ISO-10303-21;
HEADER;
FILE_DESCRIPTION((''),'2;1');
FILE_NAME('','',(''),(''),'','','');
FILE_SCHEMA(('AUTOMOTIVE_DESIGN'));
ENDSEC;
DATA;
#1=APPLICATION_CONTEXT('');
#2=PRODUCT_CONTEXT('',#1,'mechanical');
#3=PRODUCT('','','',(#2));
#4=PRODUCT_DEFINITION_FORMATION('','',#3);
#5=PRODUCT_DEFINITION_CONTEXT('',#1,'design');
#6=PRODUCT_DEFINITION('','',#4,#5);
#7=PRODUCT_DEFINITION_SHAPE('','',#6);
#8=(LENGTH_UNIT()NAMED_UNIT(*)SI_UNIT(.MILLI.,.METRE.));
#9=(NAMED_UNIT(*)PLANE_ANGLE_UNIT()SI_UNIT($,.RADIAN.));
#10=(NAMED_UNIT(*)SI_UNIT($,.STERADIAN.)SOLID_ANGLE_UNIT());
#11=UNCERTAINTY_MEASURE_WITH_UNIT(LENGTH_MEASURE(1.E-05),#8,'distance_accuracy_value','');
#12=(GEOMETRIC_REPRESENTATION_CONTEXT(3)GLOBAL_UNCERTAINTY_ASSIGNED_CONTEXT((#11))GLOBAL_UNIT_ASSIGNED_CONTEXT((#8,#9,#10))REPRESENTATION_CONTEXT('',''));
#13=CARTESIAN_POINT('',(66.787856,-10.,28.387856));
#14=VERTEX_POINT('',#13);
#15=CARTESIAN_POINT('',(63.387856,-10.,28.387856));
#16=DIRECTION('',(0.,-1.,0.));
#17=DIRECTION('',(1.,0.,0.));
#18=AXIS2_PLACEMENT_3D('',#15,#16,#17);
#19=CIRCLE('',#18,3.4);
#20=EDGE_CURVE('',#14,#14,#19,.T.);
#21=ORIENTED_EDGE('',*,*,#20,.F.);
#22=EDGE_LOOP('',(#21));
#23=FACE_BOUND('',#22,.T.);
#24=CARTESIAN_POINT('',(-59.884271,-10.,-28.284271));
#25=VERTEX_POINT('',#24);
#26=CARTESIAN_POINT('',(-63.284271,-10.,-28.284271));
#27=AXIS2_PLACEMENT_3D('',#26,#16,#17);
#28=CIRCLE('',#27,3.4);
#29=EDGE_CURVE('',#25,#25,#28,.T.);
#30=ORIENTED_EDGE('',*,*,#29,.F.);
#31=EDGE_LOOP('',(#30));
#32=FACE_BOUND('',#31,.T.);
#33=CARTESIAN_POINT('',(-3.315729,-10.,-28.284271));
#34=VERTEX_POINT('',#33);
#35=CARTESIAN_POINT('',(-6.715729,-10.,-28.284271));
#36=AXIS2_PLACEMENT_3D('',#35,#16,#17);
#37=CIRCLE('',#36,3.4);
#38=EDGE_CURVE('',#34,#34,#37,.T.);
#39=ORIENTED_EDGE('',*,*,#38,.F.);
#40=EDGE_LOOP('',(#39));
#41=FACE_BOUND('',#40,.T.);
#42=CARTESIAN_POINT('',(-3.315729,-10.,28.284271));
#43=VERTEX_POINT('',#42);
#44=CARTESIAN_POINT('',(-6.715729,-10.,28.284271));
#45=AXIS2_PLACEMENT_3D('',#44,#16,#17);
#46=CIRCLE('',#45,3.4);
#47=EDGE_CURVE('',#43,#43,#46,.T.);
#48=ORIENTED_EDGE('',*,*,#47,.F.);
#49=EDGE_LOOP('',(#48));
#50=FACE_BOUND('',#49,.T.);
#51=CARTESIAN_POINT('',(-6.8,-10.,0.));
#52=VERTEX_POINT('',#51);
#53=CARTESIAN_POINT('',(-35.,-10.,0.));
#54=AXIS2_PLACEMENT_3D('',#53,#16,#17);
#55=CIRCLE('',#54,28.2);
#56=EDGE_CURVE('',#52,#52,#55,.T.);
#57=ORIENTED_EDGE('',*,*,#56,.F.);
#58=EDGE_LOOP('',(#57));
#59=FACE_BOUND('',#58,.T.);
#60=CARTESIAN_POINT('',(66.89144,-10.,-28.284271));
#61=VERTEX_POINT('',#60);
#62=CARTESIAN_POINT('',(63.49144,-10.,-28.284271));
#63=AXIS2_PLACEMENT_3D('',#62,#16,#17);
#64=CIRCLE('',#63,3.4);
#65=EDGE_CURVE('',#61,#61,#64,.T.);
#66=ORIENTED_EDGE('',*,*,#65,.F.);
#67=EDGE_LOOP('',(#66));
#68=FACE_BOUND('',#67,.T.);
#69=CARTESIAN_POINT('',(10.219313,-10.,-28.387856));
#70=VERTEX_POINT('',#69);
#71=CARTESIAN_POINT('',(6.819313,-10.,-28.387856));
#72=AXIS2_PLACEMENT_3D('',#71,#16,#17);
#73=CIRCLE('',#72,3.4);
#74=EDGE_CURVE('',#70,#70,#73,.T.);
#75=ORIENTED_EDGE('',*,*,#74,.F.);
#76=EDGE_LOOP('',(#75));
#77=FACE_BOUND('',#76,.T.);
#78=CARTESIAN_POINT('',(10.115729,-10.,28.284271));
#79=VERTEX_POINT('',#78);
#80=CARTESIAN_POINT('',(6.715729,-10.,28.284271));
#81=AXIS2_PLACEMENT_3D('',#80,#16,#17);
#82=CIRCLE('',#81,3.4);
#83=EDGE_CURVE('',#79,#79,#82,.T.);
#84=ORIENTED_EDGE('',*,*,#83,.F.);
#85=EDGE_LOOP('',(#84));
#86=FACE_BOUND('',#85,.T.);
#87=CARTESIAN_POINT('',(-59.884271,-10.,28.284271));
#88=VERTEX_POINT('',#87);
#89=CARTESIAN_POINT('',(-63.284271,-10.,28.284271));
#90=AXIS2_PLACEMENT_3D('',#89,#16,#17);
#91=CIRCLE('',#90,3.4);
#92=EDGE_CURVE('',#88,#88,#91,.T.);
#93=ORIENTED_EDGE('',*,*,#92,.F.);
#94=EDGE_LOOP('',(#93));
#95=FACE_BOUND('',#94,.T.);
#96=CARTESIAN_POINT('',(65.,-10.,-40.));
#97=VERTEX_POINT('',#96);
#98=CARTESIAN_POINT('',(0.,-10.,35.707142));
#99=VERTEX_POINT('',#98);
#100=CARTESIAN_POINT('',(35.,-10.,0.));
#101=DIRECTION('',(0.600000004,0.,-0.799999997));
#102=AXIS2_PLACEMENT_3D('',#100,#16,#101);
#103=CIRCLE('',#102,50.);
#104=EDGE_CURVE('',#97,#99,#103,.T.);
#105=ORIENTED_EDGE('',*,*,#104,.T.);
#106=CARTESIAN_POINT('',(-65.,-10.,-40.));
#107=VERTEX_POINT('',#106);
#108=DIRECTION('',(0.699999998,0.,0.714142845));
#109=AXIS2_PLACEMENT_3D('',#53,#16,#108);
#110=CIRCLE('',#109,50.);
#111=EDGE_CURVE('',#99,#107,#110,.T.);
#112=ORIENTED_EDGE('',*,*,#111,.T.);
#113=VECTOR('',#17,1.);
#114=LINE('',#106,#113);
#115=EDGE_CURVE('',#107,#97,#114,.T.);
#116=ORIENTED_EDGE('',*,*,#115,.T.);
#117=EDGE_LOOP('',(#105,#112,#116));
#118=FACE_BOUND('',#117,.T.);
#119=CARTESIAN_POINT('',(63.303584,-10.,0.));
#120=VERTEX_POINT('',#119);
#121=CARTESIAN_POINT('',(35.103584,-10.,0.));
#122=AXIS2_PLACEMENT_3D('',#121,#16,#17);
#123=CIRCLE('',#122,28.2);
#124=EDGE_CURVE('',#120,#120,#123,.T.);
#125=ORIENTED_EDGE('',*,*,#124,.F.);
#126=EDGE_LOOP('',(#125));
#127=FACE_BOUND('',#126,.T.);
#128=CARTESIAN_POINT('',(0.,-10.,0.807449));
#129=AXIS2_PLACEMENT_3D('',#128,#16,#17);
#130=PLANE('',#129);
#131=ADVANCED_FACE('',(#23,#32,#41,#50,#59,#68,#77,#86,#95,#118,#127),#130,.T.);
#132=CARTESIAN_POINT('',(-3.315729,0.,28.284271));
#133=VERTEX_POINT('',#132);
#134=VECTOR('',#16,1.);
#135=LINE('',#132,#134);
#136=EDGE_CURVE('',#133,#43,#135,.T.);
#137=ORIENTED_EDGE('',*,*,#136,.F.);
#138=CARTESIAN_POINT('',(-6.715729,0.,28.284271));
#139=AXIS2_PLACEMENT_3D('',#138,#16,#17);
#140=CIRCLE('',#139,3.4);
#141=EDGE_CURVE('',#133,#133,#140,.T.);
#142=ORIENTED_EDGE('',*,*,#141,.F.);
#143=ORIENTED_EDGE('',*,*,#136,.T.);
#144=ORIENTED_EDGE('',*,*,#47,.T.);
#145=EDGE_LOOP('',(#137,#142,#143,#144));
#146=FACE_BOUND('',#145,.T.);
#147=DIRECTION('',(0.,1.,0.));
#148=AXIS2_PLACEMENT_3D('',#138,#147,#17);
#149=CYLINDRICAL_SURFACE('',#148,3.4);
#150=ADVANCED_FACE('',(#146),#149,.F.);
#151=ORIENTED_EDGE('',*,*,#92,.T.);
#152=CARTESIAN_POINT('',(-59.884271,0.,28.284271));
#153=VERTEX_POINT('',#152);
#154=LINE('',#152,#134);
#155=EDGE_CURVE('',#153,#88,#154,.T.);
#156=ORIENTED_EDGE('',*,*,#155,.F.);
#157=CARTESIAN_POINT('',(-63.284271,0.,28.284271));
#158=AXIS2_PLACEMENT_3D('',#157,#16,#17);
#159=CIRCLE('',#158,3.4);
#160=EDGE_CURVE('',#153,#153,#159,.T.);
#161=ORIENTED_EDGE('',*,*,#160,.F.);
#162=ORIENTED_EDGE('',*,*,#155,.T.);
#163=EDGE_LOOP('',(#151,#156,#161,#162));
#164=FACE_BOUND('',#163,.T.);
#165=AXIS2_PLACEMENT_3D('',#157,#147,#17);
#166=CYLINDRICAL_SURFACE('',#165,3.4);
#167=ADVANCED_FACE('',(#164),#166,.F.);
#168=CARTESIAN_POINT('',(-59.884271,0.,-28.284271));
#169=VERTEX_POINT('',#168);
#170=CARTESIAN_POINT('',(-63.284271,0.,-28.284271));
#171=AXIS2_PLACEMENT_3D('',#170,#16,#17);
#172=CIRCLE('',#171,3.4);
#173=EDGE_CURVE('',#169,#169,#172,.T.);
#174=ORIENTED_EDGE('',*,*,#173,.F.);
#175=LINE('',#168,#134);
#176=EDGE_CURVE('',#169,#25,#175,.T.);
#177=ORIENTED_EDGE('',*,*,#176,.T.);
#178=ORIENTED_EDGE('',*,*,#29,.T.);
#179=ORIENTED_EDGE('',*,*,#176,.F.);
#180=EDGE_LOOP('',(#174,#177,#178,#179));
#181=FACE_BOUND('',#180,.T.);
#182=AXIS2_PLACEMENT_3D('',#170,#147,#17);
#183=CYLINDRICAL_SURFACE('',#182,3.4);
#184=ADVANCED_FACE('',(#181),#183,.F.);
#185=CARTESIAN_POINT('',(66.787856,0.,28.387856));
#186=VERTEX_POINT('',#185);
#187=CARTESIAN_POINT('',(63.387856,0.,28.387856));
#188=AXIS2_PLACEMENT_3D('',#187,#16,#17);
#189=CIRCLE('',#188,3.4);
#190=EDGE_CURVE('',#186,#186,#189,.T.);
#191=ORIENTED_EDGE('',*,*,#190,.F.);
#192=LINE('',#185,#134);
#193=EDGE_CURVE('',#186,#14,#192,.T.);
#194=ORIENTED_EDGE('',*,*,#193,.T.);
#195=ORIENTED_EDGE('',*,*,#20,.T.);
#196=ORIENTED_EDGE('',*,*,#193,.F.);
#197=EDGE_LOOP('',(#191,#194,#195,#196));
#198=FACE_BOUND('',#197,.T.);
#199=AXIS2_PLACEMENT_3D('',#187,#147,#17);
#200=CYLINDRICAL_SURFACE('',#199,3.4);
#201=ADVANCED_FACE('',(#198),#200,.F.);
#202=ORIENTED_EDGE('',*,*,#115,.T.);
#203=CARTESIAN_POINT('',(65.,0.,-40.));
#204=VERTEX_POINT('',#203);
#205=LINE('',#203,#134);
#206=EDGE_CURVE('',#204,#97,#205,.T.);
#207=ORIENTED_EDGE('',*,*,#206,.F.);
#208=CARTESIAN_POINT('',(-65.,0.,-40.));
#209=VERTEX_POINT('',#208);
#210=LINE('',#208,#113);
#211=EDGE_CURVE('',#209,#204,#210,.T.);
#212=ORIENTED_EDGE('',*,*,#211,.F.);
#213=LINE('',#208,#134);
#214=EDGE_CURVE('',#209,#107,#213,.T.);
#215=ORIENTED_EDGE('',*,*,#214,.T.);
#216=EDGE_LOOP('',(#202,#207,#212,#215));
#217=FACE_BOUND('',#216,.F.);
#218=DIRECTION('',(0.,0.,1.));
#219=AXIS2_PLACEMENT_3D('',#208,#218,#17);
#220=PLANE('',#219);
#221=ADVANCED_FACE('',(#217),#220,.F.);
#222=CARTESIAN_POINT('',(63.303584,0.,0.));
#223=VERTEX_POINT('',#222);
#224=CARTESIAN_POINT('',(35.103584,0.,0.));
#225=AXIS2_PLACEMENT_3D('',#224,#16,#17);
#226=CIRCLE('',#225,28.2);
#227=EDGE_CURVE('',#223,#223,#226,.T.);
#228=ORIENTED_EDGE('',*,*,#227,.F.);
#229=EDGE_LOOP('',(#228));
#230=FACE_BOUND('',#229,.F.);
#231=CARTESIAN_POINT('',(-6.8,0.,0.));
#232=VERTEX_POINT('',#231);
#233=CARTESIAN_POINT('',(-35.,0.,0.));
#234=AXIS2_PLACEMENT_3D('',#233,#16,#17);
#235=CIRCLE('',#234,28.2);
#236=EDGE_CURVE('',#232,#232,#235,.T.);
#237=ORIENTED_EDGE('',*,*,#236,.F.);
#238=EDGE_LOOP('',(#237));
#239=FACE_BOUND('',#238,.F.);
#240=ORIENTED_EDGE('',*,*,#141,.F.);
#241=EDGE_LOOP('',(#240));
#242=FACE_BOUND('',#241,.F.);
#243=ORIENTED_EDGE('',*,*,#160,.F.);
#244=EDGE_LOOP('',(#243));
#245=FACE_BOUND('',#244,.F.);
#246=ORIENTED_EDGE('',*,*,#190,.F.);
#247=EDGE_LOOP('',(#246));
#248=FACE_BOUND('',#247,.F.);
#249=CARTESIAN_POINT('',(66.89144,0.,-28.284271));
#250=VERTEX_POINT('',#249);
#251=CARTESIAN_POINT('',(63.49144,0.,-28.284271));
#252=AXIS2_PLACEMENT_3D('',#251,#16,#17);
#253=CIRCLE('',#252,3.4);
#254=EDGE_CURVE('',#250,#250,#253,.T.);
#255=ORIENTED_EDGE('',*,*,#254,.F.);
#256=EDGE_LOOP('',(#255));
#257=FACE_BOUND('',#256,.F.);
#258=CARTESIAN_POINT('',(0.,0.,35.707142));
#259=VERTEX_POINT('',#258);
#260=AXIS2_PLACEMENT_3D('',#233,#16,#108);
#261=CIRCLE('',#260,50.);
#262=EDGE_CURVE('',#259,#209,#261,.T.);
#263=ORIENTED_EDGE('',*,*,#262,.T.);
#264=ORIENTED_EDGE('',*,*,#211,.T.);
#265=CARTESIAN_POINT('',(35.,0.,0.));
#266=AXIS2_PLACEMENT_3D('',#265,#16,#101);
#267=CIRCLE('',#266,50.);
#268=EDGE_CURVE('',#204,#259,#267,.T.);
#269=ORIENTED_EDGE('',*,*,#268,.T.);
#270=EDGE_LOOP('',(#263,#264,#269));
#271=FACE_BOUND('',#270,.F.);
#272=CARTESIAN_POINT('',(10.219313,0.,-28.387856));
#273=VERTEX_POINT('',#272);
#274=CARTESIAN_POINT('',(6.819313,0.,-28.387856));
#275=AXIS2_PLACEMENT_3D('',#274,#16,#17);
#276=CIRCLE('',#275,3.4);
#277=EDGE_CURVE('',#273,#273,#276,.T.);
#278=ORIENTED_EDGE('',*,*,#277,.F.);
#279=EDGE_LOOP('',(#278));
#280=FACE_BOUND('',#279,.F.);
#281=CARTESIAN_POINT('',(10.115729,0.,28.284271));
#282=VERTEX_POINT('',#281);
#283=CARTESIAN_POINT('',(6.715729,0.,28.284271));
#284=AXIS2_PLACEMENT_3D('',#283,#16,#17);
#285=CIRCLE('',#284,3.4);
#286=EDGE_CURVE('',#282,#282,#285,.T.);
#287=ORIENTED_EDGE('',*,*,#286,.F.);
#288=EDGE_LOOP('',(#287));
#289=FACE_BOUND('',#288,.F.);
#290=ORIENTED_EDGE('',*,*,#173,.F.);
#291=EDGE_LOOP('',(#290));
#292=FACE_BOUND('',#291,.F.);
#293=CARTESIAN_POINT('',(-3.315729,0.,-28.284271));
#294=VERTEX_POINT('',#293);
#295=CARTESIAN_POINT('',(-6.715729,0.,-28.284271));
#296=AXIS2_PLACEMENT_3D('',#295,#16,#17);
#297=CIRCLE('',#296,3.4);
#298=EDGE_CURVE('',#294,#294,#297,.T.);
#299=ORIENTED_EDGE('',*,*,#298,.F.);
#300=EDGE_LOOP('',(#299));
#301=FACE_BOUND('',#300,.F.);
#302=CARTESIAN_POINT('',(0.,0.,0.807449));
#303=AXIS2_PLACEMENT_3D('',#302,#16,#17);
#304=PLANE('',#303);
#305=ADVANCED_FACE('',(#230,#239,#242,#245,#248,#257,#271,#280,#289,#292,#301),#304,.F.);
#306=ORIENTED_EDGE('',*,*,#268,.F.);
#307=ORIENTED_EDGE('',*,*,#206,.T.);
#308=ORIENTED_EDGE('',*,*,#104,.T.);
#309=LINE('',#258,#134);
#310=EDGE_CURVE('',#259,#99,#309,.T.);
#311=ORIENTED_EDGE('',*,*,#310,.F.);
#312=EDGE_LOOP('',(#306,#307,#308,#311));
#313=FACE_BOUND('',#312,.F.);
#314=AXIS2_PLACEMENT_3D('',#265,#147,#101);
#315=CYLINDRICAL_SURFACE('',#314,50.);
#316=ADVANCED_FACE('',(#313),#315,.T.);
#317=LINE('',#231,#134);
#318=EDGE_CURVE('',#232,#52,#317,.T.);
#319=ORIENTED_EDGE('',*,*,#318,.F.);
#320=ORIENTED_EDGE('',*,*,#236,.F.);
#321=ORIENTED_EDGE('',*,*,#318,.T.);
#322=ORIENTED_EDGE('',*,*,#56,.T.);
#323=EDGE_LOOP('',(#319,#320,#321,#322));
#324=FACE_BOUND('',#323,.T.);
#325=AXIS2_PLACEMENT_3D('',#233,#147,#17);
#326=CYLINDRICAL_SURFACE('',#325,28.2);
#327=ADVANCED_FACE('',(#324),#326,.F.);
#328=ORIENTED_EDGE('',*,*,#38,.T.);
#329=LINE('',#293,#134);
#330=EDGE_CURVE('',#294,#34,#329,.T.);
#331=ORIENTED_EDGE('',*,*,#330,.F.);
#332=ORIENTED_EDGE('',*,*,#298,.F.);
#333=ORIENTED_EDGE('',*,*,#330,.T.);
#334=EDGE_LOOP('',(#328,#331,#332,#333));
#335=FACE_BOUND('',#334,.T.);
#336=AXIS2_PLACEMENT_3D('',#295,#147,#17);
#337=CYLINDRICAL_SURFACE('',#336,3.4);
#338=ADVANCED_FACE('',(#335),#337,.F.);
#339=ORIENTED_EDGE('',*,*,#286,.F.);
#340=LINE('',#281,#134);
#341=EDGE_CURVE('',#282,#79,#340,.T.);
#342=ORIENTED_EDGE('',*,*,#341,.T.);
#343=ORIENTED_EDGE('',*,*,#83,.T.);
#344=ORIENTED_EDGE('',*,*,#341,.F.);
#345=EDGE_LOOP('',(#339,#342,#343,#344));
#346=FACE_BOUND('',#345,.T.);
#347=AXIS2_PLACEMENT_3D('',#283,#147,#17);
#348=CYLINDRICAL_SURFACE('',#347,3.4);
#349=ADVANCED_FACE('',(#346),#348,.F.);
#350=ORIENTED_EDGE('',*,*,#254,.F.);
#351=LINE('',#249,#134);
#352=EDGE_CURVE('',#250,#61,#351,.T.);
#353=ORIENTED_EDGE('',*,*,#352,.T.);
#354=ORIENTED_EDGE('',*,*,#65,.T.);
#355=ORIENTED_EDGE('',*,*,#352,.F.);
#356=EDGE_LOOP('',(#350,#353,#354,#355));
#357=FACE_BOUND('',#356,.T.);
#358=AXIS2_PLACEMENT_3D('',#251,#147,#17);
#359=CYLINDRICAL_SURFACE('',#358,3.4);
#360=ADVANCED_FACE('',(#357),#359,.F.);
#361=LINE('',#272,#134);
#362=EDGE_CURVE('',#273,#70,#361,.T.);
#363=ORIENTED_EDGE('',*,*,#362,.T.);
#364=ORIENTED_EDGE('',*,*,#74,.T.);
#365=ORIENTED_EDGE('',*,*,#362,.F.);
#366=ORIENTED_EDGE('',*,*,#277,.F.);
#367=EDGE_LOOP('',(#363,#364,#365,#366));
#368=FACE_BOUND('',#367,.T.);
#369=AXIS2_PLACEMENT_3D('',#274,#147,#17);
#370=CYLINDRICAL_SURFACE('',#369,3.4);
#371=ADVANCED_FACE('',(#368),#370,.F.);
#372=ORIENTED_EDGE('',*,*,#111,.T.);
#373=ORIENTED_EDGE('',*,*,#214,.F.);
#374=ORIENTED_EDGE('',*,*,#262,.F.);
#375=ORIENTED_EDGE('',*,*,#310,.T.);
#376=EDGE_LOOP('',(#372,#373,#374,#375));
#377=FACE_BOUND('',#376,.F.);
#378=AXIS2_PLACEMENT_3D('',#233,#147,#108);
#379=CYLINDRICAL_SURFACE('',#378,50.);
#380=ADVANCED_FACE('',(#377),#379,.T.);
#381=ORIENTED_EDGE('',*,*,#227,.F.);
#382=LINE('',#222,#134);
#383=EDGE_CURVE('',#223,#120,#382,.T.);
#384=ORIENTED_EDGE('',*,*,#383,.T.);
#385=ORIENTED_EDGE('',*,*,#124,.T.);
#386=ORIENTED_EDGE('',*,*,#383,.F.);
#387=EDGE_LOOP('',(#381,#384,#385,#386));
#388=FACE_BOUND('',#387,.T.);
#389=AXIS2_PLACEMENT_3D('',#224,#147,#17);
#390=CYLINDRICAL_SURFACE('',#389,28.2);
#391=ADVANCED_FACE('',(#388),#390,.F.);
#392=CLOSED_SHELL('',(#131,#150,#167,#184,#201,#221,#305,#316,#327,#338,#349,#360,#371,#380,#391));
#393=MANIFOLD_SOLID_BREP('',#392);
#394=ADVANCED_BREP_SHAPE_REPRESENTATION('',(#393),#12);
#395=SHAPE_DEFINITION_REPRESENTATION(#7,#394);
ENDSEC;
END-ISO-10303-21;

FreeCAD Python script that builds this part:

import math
import FreeCAD as App
import Part
import Sketcher

V = App.Vector
Q = App.Units.Quantity

doc = App.newDocument("Part")
params = doc.addObject("Spreadsheet::Sheet", "Params")
for row, (alias, value) in enumerate([
    ("sketch1_radius", "50 mm"),
    ("sketch1_diameter", "6.8 mm"),
    ("sketch1_diameter2", "56.4 mm"),
    ("sketch1_width", "130 mm"),
    ("pad1_length", "10 mm"),
], start=1):
    params.set(f"A{row}", alias)
    params.set(f"B{row}", "=" + value)
    params.setAlias(f"B{row}", alias)

body = doc.addObject("PartDesign::Body", "Body")

# Sketch on XZ plane
sketch1 = body.newObject("Sketcher::SketchObject", "Sketch")
sketch1.AttachmentSupport = (doc.getObject("XZ_Plane"), [""])
sketch1.MapMode = "FlatFace"
sketch1.addGeometry(Part.ArcOfCircle(Part.Circle(V(35, 0, 0), V(0, 0, 1), 50), math.radians(-53), math.radians(134)), False)
sketch1.addGeometry(Part.ArcOfCircle(Part.Circle(V(-35, 0, 0), V(0, 0, 1), 50), math.radians(46), math.radians(233)), False)
sketch1.addGeometry(Part.LineSegment(V(-65, -40, 0), V(65, -40, 0)), False)
sketch1.addGeometry(Part.Circle(V(-63.3, -28.3, 0), V(0, 0, 1), 3.4), False)
sketch1.addGeometry(Part.Circle(V(-6.7, -28.3, 0), V(0, 0, 1), 3.4), False)
sketch1.addGeometry(Part.Circle(V(-35, 0, 0), V(0, 0, 1), 28.2), False)
sketch1.addGeometry(Part.Circle(V(6.8, -28.4, 0), V(0, 0, 1), 3.4), False)
sketch1.addGeometry(Part.Circle(V(63.5, -28.3, 0), V(0, 0, 1), 3.4), False)
sketch1.addGeometry(Part.Circle(V(35.1, 0, 0), V(0, 0, 1), 28.2), False)
sketch1.addGeometry(Part.Circle(V(-63.3, 28.3, 0), V(0, 0, 1), 3.4), False)
sketch1.addGeometry(Part.Circle(V(-6.7, 28.3, 0), V(0, 0, 1), 3.4), False)
sketch1.addGeometry(Part.Circle(V(6.7, 28.3, 0), V(0, 0, 1), 3.4), False)
sketch1.addGeometry(Part.Circle(V(63.4, 28.4, 0), V(0, 0, 1), 3.4), False)
sketch1.addConstraint(Sketcher.Constraint("Coincident", 0, 2, 1, 1))
sketch1.addConstraint(Sketcher.Constraint("Coincident", 1, 2, 2, 1))
sketch1.addConstraint(Sketcher.Constraint("Coincident", 2, 2, 0, 1))
sketch1.addConstraint(Sketcher.Constraint("Horizontal", 2))
sketch1.addConstraint(Sketcher.Constraint("Coincident", 5, 3, 1, 3))
sketch1.addConstraint(Sketcher.Constraint("Equal", 0, 1))
sketch1.addConstraint(Sketcher.Constraint("Equal", 3, 4))
sketch1.addConstraint(Sketcher.Constraint("Equal", 4, 6))
sketch1.addConstraint(Sketcher.Constraint("Equal", 6, 7))
sketch1.addConstraint(Sketcher.Constraint("Equal", 5, 8))
sketch1.addConstraint(Sketcher.Constraint("Equal", 7, 9))
sketch1.addConstraint(Sketcher.Constraint("Equal", 9, 10))
sketch1.addConstraint(Sketcher.Constraint("Equal", 10, 11))
sketch1.addConstraint(Sketcher.Constraint("Equal", 11, 12))
sketch1.addConstraint(Sketcher.Constraint("Symmetric", 0, 3, 1, 3, -1, 1))
sketch1.addConstraint(Sketcher.Constraint("Symmetric", 4, 3, 11, 3, -1, 1))
sketch1.addConstraint(Sketcher.Constraint("Symmetric", 10, 3, 11, 3, -2))
sketch1.addConstraint(Sketcher.Constraint("Symmetric", 3, 3, 9, 3, -1))
sketch1.addConstraint(Sketcher.Constraint("PointOnObject", 0, 3, -1))
sketch1.addConstraint(Sketcher.Constraint("PointOnObject", 8, 3, -1))
sketch1.addConstraint(Sketcher.Constraint("Horizontal", 3, 3, 4, 3))
sketch1.addConstraint(Sketcher.Constraint("Horizontal", 4, 3, 7, 3))
sketch1.addConstraint(Sketcher.Constraint("Radius", 0, Q("50 mm")))
sketch1.addConstraint(Sketcher.Constraint("Diameter", 3, Q("6.8 mm")))
sketch1.addConstraint(Sketcher.Constraint("Diameter", 5, Q("56.4 mm")))
sketch1.addConstraint(Sketcher.Constraint("DistanceX", 2, 1, 2, 2, Q("130 mm")))
sketch1.addConstraint(Sketcher.Constraint("DistanceX", -1, 1, 0, 3, Q("35 mm")))
sketch1.addConstraint(Sketcher.Constraint("DistanceX", 3, 3, -1, 1, Q("63.284271 mm")))
sketch1.addConstraint(Sketcher.Constraint("DistanceY", 3, 3, -1, 1, Q("28.284271 mm")))
sketch1.addConstraint(Sketcher.Constraint("DistanceX", 4, 3, -1, 1, Q("6.715729 mm")))
sketch1.addConstraint(Sketcher.Constraint("DistanceX", -1, 1, 7, 3, Q("63.49144 mm")))
sketch1.addConstraint(Sketcher.Constraint("DistanceX", 6, 3, 8, 3, Q("28.284271 mm")))
sketch1.addConstraint(Sketcher.Constraint("DistanceX", -1, 1, 6, 3, Q("6.819313 mm")))
sketch1.addConstraint(Sketcher.Constraint("DistanceY", 6, 3, -1, 1, Q("28.387856 mm")))
sketch1.addConstraint(Sketcher.Constraint("DistanceX", -1, 1, 12, 3, Q("63.387856 mm")))
sketch1.addConstraint(Sketcher.Constraint("DistanceY", -1, 1, 12, 3, Q("28.387856 mm")))
sketch1.setExpression("Constraints[22]", "Params.sketch1_radius")
sketch1.setExpression("Constraints[23]", "Params.sketch1_diameter")
sketch1.setExpression("Constraints[24]", "Params.sketch1_diameter2")
sketch1.setExpression("Constraints[25]", "Params.sketch1_width")
pad1 = body.newObject("PartDesign::Pad", "Pad")
pad1.Profile = sketch1
pad1.setExpression("Length", "Params.pad1_length")

doc.recompute()
